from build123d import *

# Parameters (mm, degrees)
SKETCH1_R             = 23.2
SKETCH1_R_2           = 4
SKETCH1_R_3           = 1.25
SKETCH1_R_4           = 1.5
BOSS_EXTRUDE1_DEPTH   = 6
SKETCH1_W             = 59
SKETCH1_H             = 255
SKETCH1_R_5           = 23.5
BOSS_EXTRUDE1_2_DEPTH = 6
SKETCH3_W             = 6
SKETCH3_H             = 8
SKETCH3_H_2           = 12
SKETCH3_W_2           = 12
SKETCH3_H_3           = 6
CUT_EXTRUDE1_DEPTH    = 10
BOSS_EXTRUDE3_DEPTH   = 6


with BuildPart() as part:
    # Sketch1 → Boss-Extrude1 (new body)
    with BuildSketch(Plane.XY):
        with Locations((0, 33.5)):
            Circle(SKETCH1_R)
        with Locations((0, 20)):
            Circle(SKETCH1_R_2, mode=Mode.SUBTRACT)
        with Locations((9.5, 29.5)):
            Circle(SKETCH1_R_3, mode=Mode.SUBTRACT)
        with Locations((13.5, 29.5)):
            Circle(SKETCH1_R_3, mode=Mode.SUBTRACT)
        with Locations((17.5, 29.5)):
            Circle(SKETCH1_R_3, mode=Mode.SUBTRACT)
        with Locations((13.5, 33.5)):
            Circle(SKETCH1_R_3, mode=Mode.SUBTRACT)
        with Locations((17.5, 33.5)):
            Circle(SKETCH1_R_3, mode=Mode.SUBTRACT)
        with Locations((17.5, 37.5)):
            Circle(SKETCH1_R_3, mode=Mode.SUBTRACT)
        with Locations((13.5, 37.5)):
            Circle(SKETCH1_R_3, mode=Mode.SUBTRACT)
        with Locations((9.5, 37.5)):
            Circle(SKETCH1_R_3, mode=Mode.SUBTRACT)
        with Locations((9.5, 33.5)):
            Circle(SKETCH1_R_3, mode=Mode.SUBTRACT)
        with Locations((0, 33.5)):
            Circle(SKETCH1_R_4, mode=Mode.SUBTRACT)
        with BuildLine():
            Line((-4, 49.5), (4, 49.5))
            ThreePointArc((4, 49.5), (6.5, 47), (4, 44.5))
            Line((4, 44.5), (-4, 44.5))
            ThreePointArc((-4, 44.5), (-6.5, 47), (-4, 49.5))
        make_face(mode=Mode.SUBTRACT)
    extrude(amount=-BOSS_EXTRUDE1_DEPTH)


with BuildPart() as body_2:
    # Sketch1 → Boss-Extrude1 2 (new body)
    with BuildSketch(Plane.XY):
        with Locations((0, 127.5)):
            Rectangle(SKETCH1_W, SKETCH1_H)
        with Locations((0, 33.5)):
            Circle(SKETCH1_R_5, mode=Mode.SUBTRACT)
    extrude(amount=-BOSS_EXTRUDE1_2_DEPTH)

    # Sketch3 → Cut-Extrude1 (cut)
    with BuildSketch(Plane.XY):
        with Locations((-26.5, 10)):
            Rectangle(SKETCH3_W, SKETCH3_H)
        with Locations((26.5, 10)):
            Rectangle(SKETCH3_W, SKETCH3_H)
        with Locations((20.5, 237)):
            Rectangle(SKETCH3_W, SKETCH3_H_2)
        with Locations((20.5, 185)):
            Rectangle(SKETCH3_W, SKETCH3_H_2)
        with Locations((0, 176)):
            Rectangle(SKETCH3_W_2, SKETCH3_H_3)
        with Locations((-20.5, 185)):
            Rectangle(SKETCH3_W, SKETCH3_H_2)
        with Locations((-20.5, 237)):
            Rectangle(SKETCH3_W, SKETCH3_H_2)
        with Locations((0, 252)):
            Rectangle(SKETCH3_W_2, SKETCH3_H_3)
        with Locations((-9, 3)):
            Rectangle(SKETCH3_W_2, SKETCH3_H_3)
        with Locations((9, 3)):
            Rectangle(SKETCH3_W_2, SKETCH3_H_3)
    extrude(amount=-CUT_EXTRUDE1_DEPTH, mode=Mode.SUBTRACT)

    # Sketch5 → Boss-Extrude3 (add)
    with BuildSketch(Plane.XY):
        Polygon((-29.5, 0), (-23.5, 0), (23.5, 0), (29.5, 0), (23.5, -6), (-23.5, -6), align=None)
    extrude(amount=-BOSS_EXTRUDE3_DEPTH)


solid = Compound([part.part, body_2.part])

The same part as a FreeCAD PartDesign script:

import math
import FreeCAD as App
import Part
import Sketcher

V = App.Vector
Q = App.Units.Quantity

doc = App.newDocument("Part")
params = doc.addObject("Spreadsheet::Sheet", "Params")
for row, (alias, value) in enumerate([
    ("sketch1_diameter", "8 mm"),
    ("sketch1_diameter2", "3 mm"),
    ("sketch1_diameter3", "46.4 mm"),
    ("sketch1_diameter4", "2.5 mm"),
    ("sketch1_radius", "2.5 mm"),
    ("pad1_length", "6 mm"),
    ("sketch2_diameter", "47 mm"),
    ("sketch2_width", "59 mm"),
    ("sketch2_height", "255 mm"),
    ("pad2_length", "6 mm"),
    ("sketch3_width", "6 mm"),
    ("sketch3_width2", "12 mm"),
    ("sketch3_height", "8 mm"),
    ("pocket1_length", "10 mm"),
    ("sketch4_width", "59 mm"),
    ("sketch4_width2", "47 mm"),
    ("pad3_length", "6 mm"),
], start=1):
    params.set(f"A{row}", alias)
    params.set(f"B{row}", "=" + value)
    params.setAlias(f"B{row}", alias)

body = doc.addObject("PartDesign::Body", "Body")

# Sketch on XY plane
sketch1 = body.newObject("Sketcher::SketchObject", "Sketch")
sketch1.AttachmentSupport = (doc.getObject("XY_Plane"), [""])
sketch1.MapMode = "FlatFace"
sketch1.addGeometry([
    Part.Circle(V(0, 33.5, 0), V(0, 0, 1), 23.2),  # 0
    Part.Circle(V(0, 20, 0), V(0, 0, 1), 4),  # 1
    Part.Circle(V(9.5, 29.5, 0), V(0, 0, 1), 1.25),  # 2
    Part.Circle(V(13.5, 29.5, 0), V(0, 0, 1), 1.25),  # 3
    Part.Circle(V(17.5, 29.5, 0), V(0, 0, 1), 1.25),  # 4
    Part.Circle(V(0, 33.5, 0), V(0, 0, 1), 1.5),  # 5
    Part.ArcOfCircle(Part.Circle(V(-4, 47, 0), V(0, 0, 1), 2.5), math.radians(90), math.radians(270)),  # 6
    Part.LineSegment(V(-4, 49.5, 0), V(4, 49.5, 0)),  # 7
    Part.ArcOfCircle(Part.Circle(V(4, 47, 0), V(0, 0, 1), 2.5), math.radians(-90), math.radians(90)),  # 8
    Part.LineSegment(V(4, 44.5, 0), V(-4, 44.5, 0)),  # 9
    Part.Circle(V(9.5, 33.5, 0), V(0, 0, 1), 1.25),  # 10
    Part.Circle(V(9.5, 37.5, 0), V(0, 0, 1), 1.25),  # 11
    Part.Circle(V(13.5, 33.5, 0), V(0, 0, 1), 1.25),  # 12
    Part.Circle(V(17.5, 33.5, 0), V(0, 0, 1), 1.25),  # 13
    Part.Circle(V(13.5, 37.5, 0), V(0, 0, 1), 1.25),  # 14
    Part.Circle(V(17.5, 37.5, 0), V(0, 0, 1), 1.25),  # 15
], False)
sketch1.addConstraint([
    Sketcher.Constraint("Tangent", 6, 1, 7, 1),
    Sketcher.Constraint("Tangent", 7, 2, 8, 2),
    Sketcher.Constraint("Tangent", 8, 1, 9, 1),
    Sketcher.Constraint("Tangent", 9, 2, 6, 2),
    Sketcher.Constraint("Horizontal", 7),
    Sketcher.Constraint("Horizontal", 9),
    Sketcher.Constraint("Coincident", 5, 3, 0, 3),
    Sketcher.Constraint("Equal", 2, 3),
    Sketcher.Constraint("Equal", 3, 4),
    Sketcher.Constraint("Equal", 4, 10),
    Sketcher.Constraint("Equal", 10, 11),
    Sketcher.Constraint("Equal", 11, 12),
    Sketcher.Constraint("Equal", 12, 13),
    Sketcher.Constraint("Equal", 13, 14),
    Sketcher.Constraint("Equal", 14, 15),
    Sketcher.Constraint("PointOnObject", 0, 3, -2),
    Sketcher.Constraint("PointOnObject", 1, 3, -2),
    Sketcher.Constraint("Horizontal", 2, 3, 3, 3),
    Sketcher.Constraint("Horizontal", 3, 3, 4, 3),
    Sketcher.Constraint("Horizontal", 5, 3, 10, 3),
    Sketcher.Constraint("Horizontal", 10, 3, 12, 3),
    Sketcher.Constraint("Horizontal", 12, 3, 13, 3),
    Sketcher.Constraint("Horizontal", 11, 3, 14, 3),
    Sketcher.Constraint("Horizontal", 14, 3, 15, 3),
    Sketcher.Constraint("Vertical", 2, 3, 10, 3),
    Sketcher.Constraint("Vertical", 10, 3, 11, 3),
    Sketcher.Constraint("Vertical", 3, 3, 12, 3),
    Sketcher.Constraint("Vertical", 4, 3, 13, 3),
    Sketcher.Constraint("Vertical", 12, 3, 14, 3),
    Sketcher.Constraint("Vertical", 13, 3, 15, 3),
    Sketcher.Constraint("Diameter", 1, Q("8 mm")),
    Sketcher.Constraint("Diameter", 5, Q("3 mm")),
    Sketcher.Constraint("Diameter", 0, Q("46.4 mm")),
    Sketcher.Constraint("Diameter", 2, Q("2.5 mm")),
    Sketcher.Constraint("Radius", 6, Q("2.5 mm")),
    Sketcher.Constraint("DistanceX", 7, 1, 7, 2, Q("8 mm")),
    Sketcher.Constraint("DistanceY", -1, 1, 1, 3, Q("20 mm")),
    Sketcher.Constraint("DistanceX", 6, 3, -1, 1, Q("4 mm")),
    Sketcher.Constraint("DistanceY", -1, 1, 6, 3, Q("47 mm")),
    Sketcher.Constraint("DistanceY", 2, 3, 0, 3, Q("4 mm")),
    Sketcher.Constraint("DistanceX", 2, 3, 3, 3, Q("4 mm")),
    Sketcher.Constraint("DistanceX", 3, 3, 4, 3, Q("4 mm")),
    Sketcher.Constraint("DistanceY", 10, 3, 11, 3, Q("4 mm")),
    Sketcher.Constraint("DistanceY", 0, 3, 6, 1, Q("16 mm")),
    Sketcher.Constraint("DistanceX", -1, 1, 2, 3, Q("9.5 mm")),
])
sketch1.setExpression("Constraints[30]", "Params.sketch1_diameter")
sketch1.setExpression("Constraints[31]", "Params.sketch1_diameter2")
sketch1.setExpression("Constraints[32]", "Params.sketch1_diameter3")
sketch1.setExpression("Constraints[33]", "Params.sketch1_diameter4")
sketch1.setExpression("Constraints[34]", "Params.sketch1_radius")
pad1 = body.newObject("PartDesign::Pad", "Pad")
pad1.Profile = sketch1
pad1.setExpression("Length", "Params.pad1_length")
pad1.Reversed = True
body2 = doc.addObject("PartDesign::Body", "Body001")

# Sketch on XY plane
sketch2 = body2.newObject("Sketcher::SketchObject", "Sketch001")
sketch2.AttachmentSupport = (doc.getObject("XY_Plane001"), [""])
sketch2.MapMode = "FlatFace"
sketch2.addGeometry([
    Part.LineSegment(V(-29.5, 255, 0), V(-29.5, 0, 0)),  # 0
    Part.LineSegment(V(-29.5, 0, 0), V(29.5, 0, 0)),  # 1
    Part.LineSegment(V(29.5, 0, 0), V(29.5, 255, 0)),  # 2
    Part.LineSegment(V(29.5, 255, 0), V(-29.5, 255, 0)),  # 3
    Part.Circle(V(0, 33.5, 0), V(0, 0, 1), 23.5),  # 4
], False)
sketch2.addConstraint([
    Sketcher.Constraint("Coincident", 0, 2, 1, 1),
    Sketcher.Constraint("Coincident", 1, 2, 2, 1),
    Sketcher.Constraint("Coincident", 2, 2, 3, 1),
    Sketcher.Constraint("Coincident", 3, 2, 0, 1),
    Sketcher.Constraint("Vertical", 0),
    Sketcher.Constraint("Horizontal", 1),
    Sketcher.Constraint("Vertical", 2),
    Sketcher.Constraint("Horizontal", 3),
    Sketcher.Constraint("Symmetric", 0, 2, 1, 2, -1, 1),
    Sketcher.Constraint("PointOnObject", 4, 3, -2),
    Sketcher.Constraint("Diameter", 4, Q("47 mm")),
    Sketcher.Constraint("DistanceX", 1, 1, 1, 2, Q("59 mm")),
    Sketcher.Constraint("DistanceY", 0, 2, 0, 1, Q("255 mm")),
    Sketcher.Constraint("DistanceY", -1, 1, 4, 3, Q("33.5 mm")),
])
sketch2.setExpression("Constraints[10]", "Params.sketch2_diameter")
sketch2.setExpression("Constraints[11]", "Params.sketch2_width")
sketch2.setExpression("Constraints[12]", "Params.sketch2_height")
pad2 = body2.newObject("PartDesign::Pad", "Pad001")
pad2.Profile = sketch2
pad2.setExpression("Length", "Params.pad2_length")
pad2.Reversed = True

# Sketch on XY plane
sketch3 = body2.newObject("Sketcher::SketchObject", "Sketch002")
sketch3.AttachmentSupport = (doc.getObject("XY_Plane001"), [""])
sketch3.MapMode = "FlatFace"
sketch3.addGeometry([
    Part.LineSegment(V(-29.5, 14, 0), V(-29.5, 6, 0)),  # 0
    Part.LineSegment(V(-29.5, 6, 0), V(-23.5, 6, 0)),  # 1
    Part.LineSegment(V(-23.5, 6, 0), V(-23.5, 14, 0)),  # 2
    Part.LineSegment(V(-23.5, 14, 0), V(-29.5, 14, 0)),  # 3
    Part.LineSegment(V(23.5, 14, 0), V(23.5, 6, 0)),  # 4
    Part.LineSegment(V(23.5, 6, 0), V(29.5, 6, 0)),  # 5
    Part.LineSegment(V(29.5, 6, 0), V(29.5, 14, 0)),  # 6
    Part.LineSegment(V(29.5, 14, 0), V(23.5, 14, 0)),  # 7
    Part.LineSegment(V(17.5, 243, 0), V(17.5, 231, 0)),  # 8
    Part.LineSegment(V(17.5, 231, 0), V(23.5, 231, 0)),  # 9
    Part.LineSegment(V(23.5, 231, 0), V(23.5, 243, 0)),  # 10
    Part.LineSegment(V(23.5, 243, 0), V(17.5, 243, 0)),  # 11
    Part.LineSegment(V(17.5, 191, 0), V(17.5, 179, 0)),  # 12
    Part.LineSegment(V(17.5, 179, 0), V(23.5, 179, 0)),  # 13
    Part.LineSegment(V(23.5, 179, 0), V(23.5, 191, 0)),  # 14
    Part.LineSegment(V(23.5, 191, 0), V(17.5, 191, 0)),  # 15
    Part.LineSegment(V(-6, 179, 0), V(-6, 173, 0)),  # 16
    Part.LineSegment(V(-6, 173, 0), V(6, 173, 0)),  # 17
    Part.LineSegment(V(6, 173, 0), V(6, 179, 0)),  # 18
    Part.LineSegment(V(6, 179, 0), V(-6, 179, 0)),  # 19
    Part.LineSegment(V(-23.5, 191, 0), V(-23.5, 179, 0)),  # 20
    Part.LineSegment(V(-23.5, 179, 0), V(-17.5, 179, 0)),  # 21
    Part.LineSegment(V(-17.5, 179, 0), V(-17.5, 191, 0)),  # 22
    Part.LineSegment(V(-17.5, 191, 0), V(-23.5, 191, 0)),  # 23
    Part.LineSegment(V(-23.5, 243, 0), V(-23.5, 231, 0)),  # 24
    Part.LineSegment(V(-23.5, 231, 0), V(-17.5, 231, 0)),  # 25
    Part.LineSegment(V(-17.5, 231, 0), V(-17.5, 243, 0)),  # 26
    Part.LineSegment(V(-17.5, 243, 0), V(-23.5, 243, 0)),  # 27
    Part.LineSegment(V(-6, 255, 0), V(-6, 249, 0)),  # 28
    Part.LineSegment(V(-6, 249, 0), V(6, 249, 0)),  # 29
    Part.LineSegment(V(6, 249, 0), V(6, 255, 0)),  # 30
    Part.LineSegment(V(6, 255, 0), V(-6, 255, 0)),  # 31
    Part.LineSegment(V(-15, 6, 0), V(-15, 0, 0)),  # 32
    Part.LineSegment(V(-15, 0, 0), V(-3, 0, 0)),  # 33
    Part.LineSegment(V(-3, 0, 0), V(-3, 6, 0)),  # 34
    Part.LineSegment(V(-3, 6, 0), V(-15, 6, 0)),  # 35
    Part.LineSegment(V(3, 6, 0), V(3, 0, 0)),  # 36
    Part.LineSegment(V(3, 0, 0), V(15, 0, 0)),  # 37
    Part.LineSegment(V(15, 0, 0), V(15, 6, 0)),  # 38
    Part.LineSegment(V(15, 6, 0), V(3, 6, 0)),  # 39
], False)
sketch3.addConstraint([
    Sketcher.Constraint("Coincident", 0, 2, 1, 1),
    Sketcher.Constraint("Coincident", 1, 2, 2, 1),
    Sketcher.Constraint("Coincident", 2, 2, 3, 1),
    Sketcher.Constraint("Coincident", 3, 2, 0, 1),
    Sketcher.Constraint("Coincident", 4, 2, 5, 1),
    Sketcher.Constraint("Coincident", 5, 2, 6, 1),
    Sketcher.Constraint("Coincident", 6, 2, 7, 1),
    Sketcher.Constraint("Coincident", 7, 2, 4, 1),
    Sketcher.Constraint("Coincident", 8, 2, 9, 1),
    Sketcher.Constraint("Coincident", 9, 2, 10, 1),
    Sketcher.Constraint("Coincident", 10, 2, 11, 1),
    Sketcher.Constraint("Coincident", 11, 2, 8, 1),
    Sketcher.Constraint("Coincident", 12, 2, 13, 1),
    Sketcher.Constraint("Coincident", 13, 2, 14, 1),
    Sketcher.Constraint("Coincident", 14, 2, 15, 1),
    Sketcher.Constraint("Coincident", 15, 2, 12, 1),
    Sketcher.Constraint("Coincident", 16, 2, 17, 1),
    Sketcher.Constraint("Coincident", 17, 2, 18, 1),
    Sketcher.Constraint("Coincident", 18, 2, 19, 1),
    Sketcher.Constraint("Coincident", 19, 2, 16, 1),
    Sketcher.Constraint("Coincident", 20, 2, 21, 1),
    Sketcher.Constraint("Coincident", 21, 2, 22, 1),
    Sketcher.Constraint("Coincident", 22, 2, 23, 1),
    Sketcher.Constraint("Coincident", 23, 2, 20, 1),
    Sketcher.Constraint("Coincident", 24, 2, 25, 1),
    Sketcher.Constraint("Coincident", 25, 2, 26, 1),
    Sketcher.Constraint("Coincident", 26, 2, 27, 1),
    Sketcher.Constraint("Coincident", 27, 2, 24, 1),
    Sketcher.Constraint("Coincident", 28, 2, 29, 1),
    Sketcher.Constraint("Coincident", 29, 2, 30, 1),
    Sketcher.Constraint("Coincident", 30, 2, 31, 1),
    Sketcher.Constraint("Coincident", 31, 2, 28, 1),
    Sketcher.Constraint("Coincident", 32, 2, 33, 1),
    Sketcher.Constraint("Coincident", 33, 2, 34, 1),
    Sketcher.Constraint("Coincident", 34, 2, 35, 1),
    Sketcher.Constraint("Coincident", 35, 2, 32, 1),
    Sketcher.Constraint("Coincident", 36, 2, 37, 1),
    Sketcher.Constraint("Coincident", 37, 2, 38, 1),
    Sketcher.Constraint("Coincident", 38, 2, 39, 1),
    Sketcher.Constraint("Coincident", 39, 2, 36, 1),
    Sketcher.Constraint("Vertical", 0),
    Sketcher.Constraint("Horizontal", 1),
    Sketcher.Constraint("Vertical", 2),
    Sketcher.Constraint("Horizontal", 3),
    Sketcher.Constraint("Vertical", 4),
    Sketcher.Constraint("Horizontal", 5),
    Sketcher.Constraint("Vertical", 6),
    Sketcher.Constraint("Horizontal", 7),
    Sketcher.Constraint("Vertical", 8),
    Sketcher.Constraint("Horizontal", 9),
    Sketcher.Constraint("Vertical", 10),
    Sketcher.Constraint("Horizontal", 11),
    Sketcher.Constraint("Vertical", 12),
    Sketcher.Constraint("Horizontal", 13),
    Sketcher.Constraint("Vertical", 14),
    Sketcher.Constraint("Horizontal", 15),
    Sketcher.Constraint("Vertical", 16),
    Sketcher.Constraint("Horizontal", 17),
    Sketcher.Constraint("Vertical", 18),
    Sketcher.Constraint("Horizontal", 19),
    Sketcher.Constraint("Vertical", 20),
    Sketcher.Constraint("Horizontal", 21),
    Sketcher.Constraint("Vertical", 22),
    Sketcher.Constraint("Horizontal", 23),
    Sketcher.Constraint("Vertical", 24),
    Sketcher.Constraint("Horizontal", 25),
    Sketcher.Constraint("Vertical", 26),
    Sketcher.Constraint("Horizontal", 27),
    Sketcher.Constraint("Vertical", 28),
    Sketcher.Constraint("Horizontal", 29),
    Sketcher.Constraint("Vertical", 30),
    Sketcher.Constraint("Horizontal", 31),
    Sketcher.Constraint("Vertical", 32),
    Sketcher.Constraint("Horizontal", 33),
    Sketcher.Constraint("Vertical", 34),
    Sketcher.Constraint("Horizontal", 35),
    Sketcher.Constraint("Vertical", 36),
    Sketcher.Constraint("Horizontal", 37),
    Sketcher.Constraint("Vertical", 38),
    Sketcher.Constraint("Horizontal", 39),
    Sketcher.Constraint("Symmetric", 33, 2, 36, 2, -1, 1),
    Sketcher.Constraint("Symmetric", 1, 2, 4, 2, -2),
    Sketcher.Constraint("Symmetric", 3, 2, 6, 2, -2),
    Sketcher.Constraint("Symmetric", 13, 2, 20, 2, -2),
    Sketcher.Constraint("Symmetric", 15, 2, 22, 2, -2),
    Sketcher.Constraint("Symmetric", 9, 2, 24, 2, -2),
    Sketcher.Constraint("Symmetric", 11, 2, 26, 2, -2),
    Sketcher.Constraint("Symmetric", 32, 2, 37, 2, -2),
    Sketcher.Constraint("Horizontal", 13, 2, 18, 2),
    Sketcher.Constraint("Horizontal", 5, 2, 34, 2),
    Sketcher.Constraint("Horizontal", 35, 2, 38, 2),
    Sketcher.Constraint("Vertical", 7, 2, 9, 2),
    Sketcher.Constraint("Vertical", 11, 2, 12, 2),
    Sketcher.Constraint("Vertical", 10, 2, 13, 2),
    Sketcher.Constraint("Vertical", 19, 2, 28, 2),
    Sketcher.Constraint("Vertical", 18, 2, 29, 2),
    Sketcher.Constraint("Equal", 7, 9),
    Sketcher.Constraint("Equal", 31, 33),
    Sketcher.Constraint("Equal", 39, 8),
    Sketcher.Constraint("Equal", 10, 12),
    Sketcher.Constraint("Equal", 27, 16),
    Sketcher.Constraint("Equal", 18, 28),
    Sketcher.Constraint("Equal", 30, 32),
    Sketcher.Constraint("DistanceX", 1, 1, 1, 2, Q("6 mm")),
    Sketcher.Constraint("DistanceX", 17, 1, 17, 2, Q("12 mm")),
    Sketcher.Constraint("DistanceY", 0, 2, 0, 1, Q("8 mm")),
    Sketcher.Constraint("DistanceY", -1, 1, 8, 2, Q("231 mm")),
    Sketcher.Constraint("DistanceY", -1, 1, 12, 2, Q("179 mm")),
    Sketcher.Constraint("DistanceX", 16, 2, -1, 1, Q("6 mm")),
    Sketcher.Constraint("DistanceY", -1, 1, 28, 2, Q("249 mm")),
    Sketcher.Constraint("DistanceX", 32, 2, -1, 1, Q("15 mm")),
    Sketcher.Constraint("DistanceX", 1, 2, 4, 2, Q("47 mm")),
])
sketch3.setExpression("Constraints[103]", "Params.sketch3_width")
sketch3.setExpression("Constraints[104]", "Params.sketch3_width2")
sketch3.setExpression("Constraints[105]", "Params.sketch3_height")
pocket1 = body2.newObject("PartDesign::Pocket", "Pocket")
pocket1.Profile = sketch3
pocket1.setExpression("Length", "Params.pocket1_length")

# Sketch on XY plane
sketch4 = body2.newObject("Sketcher::SketchObject", "Sketch003")
sketch4.AttachmentSupport = (doc.getObject("XY_Plane001"), [""])
sketch4.MapMode = "FlatFace"
sketch4.addGeometry([
    Part.LineSegment(V(29.5, 0, 0), V(-29.5, 0, 0)),
    Part.LineSegment(V(-29.5, 0, 0), V(-23.5, -6, 0)),
    Part.LineSegment(V(-23.5, -6, 0), V(23.5, -6, 0)),
    Part.LineSegment(V(23.5, -6, 0), V(29.5, 0, 0)),
], False)
sketch4.addConstraint([
    Sketcher.Constraint("Coincident", 0, 2, 1, 1),
    Sketcher.Constraint("Coincident", 1, 2, 2, 1),
    Sketcher.Constraint("Coincident", 2, 2, 3, 1),
    Sketcher.Constraint("Coincident", 3, 2, 0, 1),
    Sketcher.Constraint("Horizontal", 0),
    Sketcher.Constraint("Horizontal", 2),
    Sketcher.Constraint("Symmetric", 0, 2, 3, 2, -1, 1),
    Sketcher.Constraint("Perpendicular", 1, 3),
    Sketcher.Constraint("Equal", 1, 3),
    Sketcher.Constraint("DistanceX", 0, 2, 0, 1, Q("59 mm")),
    Sketcher.Constraint("DistanceX", 2, 1, 2, 2, Q("47 mm")),
])
sketch4.setExpression("Constraints[9]", "Params.sketch4_width")
sketch4.setExpression("Constraints[10]", "Params.sketch4_width2")
pad3 = body2.newObject("PartDesign::Pad", "Pad002")
pad3.Profile = sketch4
pad3.setExpression("Length", "Params.pad3_length")
pad3.Reversed = True

doc.recompute()
